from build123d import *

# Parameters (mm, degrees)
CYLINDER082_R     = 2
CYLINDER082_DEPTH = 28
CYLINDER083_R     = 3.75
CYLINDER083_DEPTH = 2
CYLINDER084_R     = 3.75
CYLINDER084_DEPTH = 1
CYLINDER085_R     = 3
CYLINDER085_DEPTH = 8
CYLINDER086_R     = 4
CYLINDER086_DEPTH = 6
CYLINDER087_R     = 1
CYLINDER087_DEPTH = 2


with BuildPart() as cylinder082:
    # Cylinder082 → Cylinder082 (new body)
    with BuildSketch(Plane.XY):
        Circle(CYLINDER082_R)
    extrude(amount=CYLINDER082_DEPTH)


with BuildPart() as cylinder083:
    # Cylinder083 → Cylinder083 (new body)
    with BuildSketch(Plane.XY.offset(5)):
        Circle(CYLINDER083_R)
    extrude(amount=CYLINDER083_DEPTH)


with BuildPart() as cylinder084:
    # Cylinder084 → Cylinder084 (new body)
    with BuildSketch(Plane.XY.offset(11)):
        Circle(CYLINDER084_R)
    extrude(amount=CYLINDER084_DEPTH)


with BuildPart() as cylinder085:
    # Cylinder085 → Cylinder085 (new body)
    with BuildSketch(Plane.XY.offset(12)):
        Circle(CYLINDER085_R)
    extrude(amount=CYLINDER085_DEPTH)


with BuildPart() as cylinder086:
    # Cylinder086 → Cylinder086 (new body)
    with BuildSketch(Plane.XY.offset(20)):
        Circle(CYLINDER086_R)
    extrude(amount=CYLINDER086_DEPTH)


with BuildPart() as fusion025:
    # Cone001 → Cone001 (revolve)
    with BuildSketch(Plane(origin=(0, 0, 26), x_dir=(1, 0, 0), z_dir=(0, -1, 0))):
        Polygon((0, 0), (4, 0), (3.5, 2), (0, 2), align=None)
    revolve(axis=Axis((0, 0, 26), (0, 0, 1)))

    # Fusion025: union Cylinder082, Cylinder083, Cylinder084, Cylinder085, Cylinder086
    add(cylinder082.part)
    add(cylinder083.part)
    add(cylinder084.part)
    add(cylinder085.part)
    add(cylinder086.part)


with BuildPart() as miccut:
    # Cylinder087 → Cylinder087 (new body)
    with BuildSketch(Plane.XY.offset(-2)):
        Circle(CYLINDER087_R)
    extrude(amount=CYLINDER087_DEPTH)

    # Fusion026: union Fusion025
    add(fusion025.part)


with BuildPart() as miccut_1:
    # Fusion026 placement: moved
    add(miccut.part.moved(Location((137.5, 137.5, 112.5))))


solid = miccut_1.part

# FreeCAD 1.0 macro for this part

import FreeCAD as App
import Part
import Sketcher

V = App.Vector

doc = App.newDocument("Part")
body = doc.addObject("PartDesign::Body", "Body")

sketch1 = doc.addObject("Sketcher::SketchObject", "Sketch")
body.addObject(sketch1)
sketch1.AttachmentSupport = (doc.XY_Plane, [""])
sketch1.MapMode = "FlatFace"
sketch1.addGeometry(Part.Circle(V(0, 0, 0), V(0, 0, 1), 2), False)
sketch1.addConstraint([
    Sketcher.Constraint("Coincident", 0, 3, -1, 1),
    Sketcher.Constraint("Diameter", 0, 4.0),
])
pad1 = doc.addObject("PartDesign::Pad", "Pad")
body.addObject(pad1)
pad1.Profile = sketch1
pad1.Length = 28
body2 = doc.addObject("PartDesign::Body", "Body001")

sketch2 = doc.addObject("Sketcher::SketchObject", "Sketch001")
body2.addObject(sketch2)
sketch2.AttachmentSupport = (doc.getObject("XY_Plane001"), [""])
sketch2.MapMode = "FlatFace"
sketch2.AttachmentOffset = App.Placement(V(0, 0, 5), App.Rotation())
sketch2.addGeometry(Part.Circle(V(0, 0, 0), V(0, 0, 1), 3.8), False)
sketch2.addConstraint([
    Sketcher.Constraint("Coincident", 0, 3, -1, 1),
    Sketcher.Constraint("Diameter", 0, 7.5),
])
pad2 = doc.addObject("PartDesign::Pad", "Pad001")
body2.addObject(pad2)
pad2.Profile = sketch2
pad2.Length = 2
body3 = doc.addObject("PartDesign::Body", "Body002")

sketch3 = doc.addObject("Sketcher::SketchObject", "Sketch002")
body3.addObject(sketch3)
sketch3.AttachmentSupport = (doc.getObject("XY_Plane002"), [""])
sketch3.MapMode = "FlatFace"
sketch3.AttachmentOffset = App.Placement(V(0, 0, 11), App.Rotation())
sketch3.addGeometry(Part.Circle(V(0, 0, 0), V(0, 0, 1), 3.8), False)
sketch3.addConstraint([
    Sketcher.Constraint("Coincident", 0, 3, -1, 1),
    Sketcher.Constraint("Diameter", 0, 7.5),
])
pad3 = doc.addObject("PartDesign::Pad", "Pad002")
body3.addObject(pad3)
pad3.Profile = sketch3
pad3.Length = 1
body4 = doc.addObject("PartDesign::Body", "Body003")

sketch4 = doc.addObject("Sketcher::SketchObject", "Sketch003")
body4.addObject(sketch4)
sketch4.AttachmentSupport = (doc.getObject("XY_Plane003"), [""])
sketch4.MapMode = "FlatFace"
sketch4.AttachmentOffset = App.Placement(V(0, 0, 12), App.Rotation())
sketch4.addGeometry(Part.Circle(V(0, 0, 0), V(0, 0, 1), 3), False)
sketch4.addConstraint([
    Sketcher.Constraint("Coincident", 0, 3, -1, 1),
    Sketcher.Constraint("Diameter", 0, 6.0),
])
pad4 = doc.addObject("PartDesign::Pad", "Pad003")
body4.addObject(pad4)
pad4.Profile = sketch4
pad4.Length = 8
body5 = doc.addObject("PartDesign::Body", "Body004")

sketch5 = doc.addObject("Sketcher::SketchObject", "Sketch004")
body5.addObject(sketch5)
sketch5.AttachmentSupport = (doc.getObject("XY_Plane004"), [""])
sketch5.MapMode = "FlatFace"
sketch5.AttachmentOffset = App.Placement(V(0, 0, 20), App.Rotation())
sketch5.addGeometry(Part.Circle(V(0, 0, 0), V(0, 0, 1), 4), False)
sketch5.addConstraint([
    Sketcher.Constraint("Coincident", 0, 3, -1, 1),
    Sketcher.Constraint("Diameter", 0, 8.0),
])
pad5 = doc.addObject("PartDesign::Pad", "Pad004")
body5.addObject(pad5)
pad5.Profile = sketch5
pad5.Length = 6
body6 = doc.addObject("PartDesign::Body", "Body005")

sketch6 = doc.addObject("Sketcher::SketchObject", "Sketch005")
body6.addObject(sketch6)
sketch6.AttachmentSupport = (doc.getObject("XZ_Plane005"), [""])
sketch6.MapMode = "FlatFace"
sketch6.addGeometry([
    Part.LineSegment(V(0, 26, 0), V(4, 26, 0)),
    Part.LineSegment(V(4, 26, 0), V(3.5, 28, 0)),
    Part.LineSegment(V(3.5, 28, 0), V(0, 28, 0)),
    Part.LineSegment(V(0, 28, 0), V(0, 26, 0)),
], False)
sketch6.addConstraint([
    Sketcher.Constraint("Coincident", 0, 2, 1, 1),
    Sketcher.Constraint("Coincident", 1, 2, 2, 1),
    Sketcher.Constraint("Coincident", 2, 2, 3, 1),
    Sketcher.Constraint("Coincident", 3, 2, 0, 1),
    Sketcher.Constraint("Horizontal", 0),
    Sketcher.Constraint("Horizontal", 2),
    Sketcher.Constraint("Vertical", 3),
    Sketcher.Constraint("PointOnObject", 2, 2, -2),
    Sketcher.Constraint("DistanceX", 0, 1, 0, 2, 4.0),
    Sketcher.Constraint("DistanceY", 3, 2, 3, 1, 2.0),
    Sketcher.Constraint("DistanceX", 2, 2, 2, 1, 3.5),
    Sketcher.Constraint("DistanceY", -1, 1, 0, 2, 26.0),
])
revolution = doc.addObject("PartDesign::Revolution", "Revolution")
body6.addObject(revolution)
revolution.Profile = sketch6
revolution.ReferenceAxis = (sketch6, ["V_Axis"])
revolution.Angle = 360
doc.recompute()

boolean = doc.addObject("PartDesign::Boolean", "Boolean")
body6.addObject(boolean)
boolean.Type = "Fuse"
boolean.addObjects([body])
doc.recompute()

boolean2 = doc.addObject("PartDesign::Boolean", "Boolean001")
body6.addObject(boolean2)
boolean2.Type = "Fuse"
boolean2.addObjects([body2])
doc.recompute()

boolean3 = doc.addObject("PartDesign::Boolean", "Boolean002")
body6.addObject(boolean3)
boolean3.Type = "Fuse"
boolean3.addObjects([body3])
doc.recompute()

boolean4 = doc.addObject("PartDesign::Boolean", "Boolean003")
body6.addObject(boolean4)
boolean4.Type = "Fuse"
boolean4.addObjects([body4])
doc.recompute()

boolean5 = doc.addObject("PartDesign::Boolean", "Boolean004")
body6.addObject(boolean5)
boolean5.Type = "Fuse"
boolean5.addObjects([body5])
body7 = doc.addObject("PartDesign::Body", "Body006")

sketch7 = doc.addObject("Sketcher::SketchObject", "Sketch006")
body7.addObject(sketch7)
sketch7.AttachmentSupport = (doc.getObject("XY_Plane006"), [""])
sketch7.MapMode = "FlatFace"
sketch7.AttachmentOffset = App.Placement(V(0, 0, -2), App.Rotation())
sketch7.addGeometry(Part.Circle(V(0, 0, 0), V(0, 0, 1), 1), False)
sketch7.addConstraint([
    Sketcher.Constraint("Coincident", 0, 3, -1, 1),
    Sketcher.Constraint("Diameter", 0, 2.0),
])
pad6 = doc.addObject("PartDesign::Pad", "Pad005")
body7.addObject(pad6)
pad6.Profile = sketch7
pad6.Length = 2
doc.recompute()

boolean6 = doc.addObject("PartDesign::Boolean", "Boolean005")
body7.addObject(boolean6)
boolean6.Type = "Fuse"
boolean6.addObjects([body6])
body8 = doc.addObject("PartDesign::Body", "Body007")
doc.recompute()

body7.Placement = App.Placement(V(137.5, 137.5, 112.5), App.Rotation(V(0, 0, 1), 0))
boolean7 = doc.addObject("PartDesign::Boolean", "Boolean006")
body8.addObject(boolean7)
boolean7.Type = "Fuse"
boolean7.addObjects([body7])

doc.recompute()
